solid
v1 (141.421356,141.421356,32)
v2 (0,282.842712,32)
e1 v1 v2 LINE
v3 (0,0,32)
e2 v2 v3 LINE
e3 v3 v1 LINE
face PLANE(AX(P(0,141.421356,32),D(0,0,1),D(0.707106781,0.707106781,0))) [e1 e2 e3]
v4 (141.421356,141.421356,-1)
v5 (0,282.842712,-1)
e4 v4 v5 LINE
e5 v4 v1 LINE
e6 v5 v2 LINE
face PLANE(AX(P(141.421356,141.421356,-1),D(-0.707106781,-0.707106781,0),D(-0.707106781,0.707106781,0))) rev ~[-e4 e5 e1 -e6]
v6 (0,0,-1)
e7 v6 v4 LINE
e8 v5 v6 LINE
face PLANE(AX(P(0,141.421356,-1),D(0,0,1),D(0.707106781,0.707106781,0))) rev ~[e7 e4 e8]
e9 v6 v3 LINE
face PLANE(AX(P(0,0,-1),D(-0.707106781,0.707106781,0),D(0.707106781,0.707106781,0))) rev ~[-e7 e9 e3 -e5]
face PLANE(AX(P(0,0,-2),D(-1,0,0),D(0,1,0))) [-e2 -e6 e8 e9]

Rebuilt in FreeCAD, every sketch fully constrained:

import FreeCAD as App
import Part
import Sketcher
from FreeCAD import Vector
Q = App.Units.Quantity


def add_polygon(sketch, points):
    """Adds a closed chain of lines whose ends are joined by coincident constraints."""
    first, n = sketch.GeometryCount, len(points)
    for a, b in zip(points, points[1:] + points[:1]):
        sketch.addGeometry(Part.LineSegment(App.Vector(*a, 0), App.Vector(*b, 0)), False)
    for i in range(n):
        sketch.addConstraint(Sketcher.Constraint("Coincident", first + i, 2, first + (i + 1) % n, 1))

doc = App.newDocument("Part")
params = doc.addObject("Spreadsheet::Sheet", "Params")
for row, (alias, value) in enumerate([
    ("sketch1_width", "313 mm"),
    ("sketch1_height", "200 mm"),
    ("pad1_length", "37 mm"),
    ("sketch2_width", "200 mm"),
    ("pad2_length", "33 mm"),
], start=1):
    params.set(f"A{row}", alias)
    params.set(f"B{row}", "=" + value)
    params.setAlias(f"B{row}", alias)

body = doc.addObject("PartDesign::Body", "Body")

sketch1 = body.newObject("Sketcher::SketchObject", "Sketch")
sketch1.AttachmentSupport = (doc.getObject("XY_Plane"), [""])
sketch1.MapMode = "FlatFace"
add_polygon(sketch1, [(0, 200), (0, 0), (313, 0), (313, 200)])
sketch1.addConstraint(Sketcher.Constraint("Vertical", 0))
sketch1.addConstraint(Sketcher.Constraint("Horizontal", 1))
sketch1.addConstraint(Sketcher.Constraint("Vertical", 2))
sketch1.addConstraint(Sketcher.Constraint("Horizontal", 3))
sketch1.addConstraint(Sketcher.Constraint("Coincident", 0, 2, -1, 1))
sketch1.addConstraint(Sketcher.Constraint("DistanceX", 1, 1, 1, 2, Q("313 mm")))
sketch1.addConstraint(Sketcher.Constraint("DistanceY", 0, 2, 0, 1, Q("200 mm")))
sketch1.setExpression("Constraints[9]", "Params.sketch1_width")
sketch1.setExpression("Constraints[10]", "Params.sketch1_height")
pad1 = body.newObject("PartDesign::Pad", "Pad")
pad1.Profile = sketch1
pad1.setExpression("Length", "Params.pad1_length")
body2 = doc.addObject("PartDesign::Body", "Body001")
doc.recompute()

body.Placement = App.Placement(Vector(0, 0, -2), App.Rotation(Vector(0, 0, 1), 45))
boolean = body2.newObject("PartDesign::Boolean", "Boolean")
boolean.Type = "Fuse"
boolean.addObjects([body])
body3 = doc.addObject("PartDesign::Body", "Body002")

sketch2 = body3.newObject("Sketcher::SketchObject", "Sketch001")
sketch2.AttachmentSupport = (doc.getObject("XY_Plane002"), [""])
sketch2.MapMode = "FlatFace"
sketch2.AttachmentOffset = App.Placement(Vector(0, 0, -1), App.Rotation())
add_polygon(sketch2, [(0, 200), (0, 0), (200, 0), (200, 200)])
sketch2.addConstraint(Sketcher.Constraint("Vertical", 0))
sketch2.addConstraint(Sketcher.Constraint("Horizontal", 1))
sketch2.addConstraint(Sketcher.Constraint("Vertical", 2))
sketch2.addConstraint(Sketcher.Constraint("Horizontal", 3))
sketch2.addConstraint(Sketcher.Constraint("Coincident", 0, 2, -1, 1))
sketch2.addConstraint(Sketcher.Constraint("Equal", 3, 0))
sketch2.addConstraint(Sketcher.Constraint("DistanceX", 1, 1, 1, 2, Q("200 mm")))
sketch2.setExpression("Constraints[10]", "Params.sketch2_width")
pad2 = body3.newObject("PartDesign::Pad", "Pad001")
pad2.Profile = sketch2
pad2.setExpression("Length", "Params.pad2_length")
doc.recompute()

boolean2 = body3.newObject("PartDesign::Boolean", "Boolean001")
boolean2.Type = "Cut"
boolean2.addObjects([body2])
body4 = doc.addObject("PartDesign::Body", "Body003")
doc.recompute()

body3.Placement = App.Placement(Vector(0, 0, 0), App.Rotation(Vector(0, 0, 1), 45))
boolean3 = body4.newObject("PartDesign::Boolean", "Boolean002")
boolean3.Type = "Fuse"
boolean3.addObjects([body3])

doc.recompute()
